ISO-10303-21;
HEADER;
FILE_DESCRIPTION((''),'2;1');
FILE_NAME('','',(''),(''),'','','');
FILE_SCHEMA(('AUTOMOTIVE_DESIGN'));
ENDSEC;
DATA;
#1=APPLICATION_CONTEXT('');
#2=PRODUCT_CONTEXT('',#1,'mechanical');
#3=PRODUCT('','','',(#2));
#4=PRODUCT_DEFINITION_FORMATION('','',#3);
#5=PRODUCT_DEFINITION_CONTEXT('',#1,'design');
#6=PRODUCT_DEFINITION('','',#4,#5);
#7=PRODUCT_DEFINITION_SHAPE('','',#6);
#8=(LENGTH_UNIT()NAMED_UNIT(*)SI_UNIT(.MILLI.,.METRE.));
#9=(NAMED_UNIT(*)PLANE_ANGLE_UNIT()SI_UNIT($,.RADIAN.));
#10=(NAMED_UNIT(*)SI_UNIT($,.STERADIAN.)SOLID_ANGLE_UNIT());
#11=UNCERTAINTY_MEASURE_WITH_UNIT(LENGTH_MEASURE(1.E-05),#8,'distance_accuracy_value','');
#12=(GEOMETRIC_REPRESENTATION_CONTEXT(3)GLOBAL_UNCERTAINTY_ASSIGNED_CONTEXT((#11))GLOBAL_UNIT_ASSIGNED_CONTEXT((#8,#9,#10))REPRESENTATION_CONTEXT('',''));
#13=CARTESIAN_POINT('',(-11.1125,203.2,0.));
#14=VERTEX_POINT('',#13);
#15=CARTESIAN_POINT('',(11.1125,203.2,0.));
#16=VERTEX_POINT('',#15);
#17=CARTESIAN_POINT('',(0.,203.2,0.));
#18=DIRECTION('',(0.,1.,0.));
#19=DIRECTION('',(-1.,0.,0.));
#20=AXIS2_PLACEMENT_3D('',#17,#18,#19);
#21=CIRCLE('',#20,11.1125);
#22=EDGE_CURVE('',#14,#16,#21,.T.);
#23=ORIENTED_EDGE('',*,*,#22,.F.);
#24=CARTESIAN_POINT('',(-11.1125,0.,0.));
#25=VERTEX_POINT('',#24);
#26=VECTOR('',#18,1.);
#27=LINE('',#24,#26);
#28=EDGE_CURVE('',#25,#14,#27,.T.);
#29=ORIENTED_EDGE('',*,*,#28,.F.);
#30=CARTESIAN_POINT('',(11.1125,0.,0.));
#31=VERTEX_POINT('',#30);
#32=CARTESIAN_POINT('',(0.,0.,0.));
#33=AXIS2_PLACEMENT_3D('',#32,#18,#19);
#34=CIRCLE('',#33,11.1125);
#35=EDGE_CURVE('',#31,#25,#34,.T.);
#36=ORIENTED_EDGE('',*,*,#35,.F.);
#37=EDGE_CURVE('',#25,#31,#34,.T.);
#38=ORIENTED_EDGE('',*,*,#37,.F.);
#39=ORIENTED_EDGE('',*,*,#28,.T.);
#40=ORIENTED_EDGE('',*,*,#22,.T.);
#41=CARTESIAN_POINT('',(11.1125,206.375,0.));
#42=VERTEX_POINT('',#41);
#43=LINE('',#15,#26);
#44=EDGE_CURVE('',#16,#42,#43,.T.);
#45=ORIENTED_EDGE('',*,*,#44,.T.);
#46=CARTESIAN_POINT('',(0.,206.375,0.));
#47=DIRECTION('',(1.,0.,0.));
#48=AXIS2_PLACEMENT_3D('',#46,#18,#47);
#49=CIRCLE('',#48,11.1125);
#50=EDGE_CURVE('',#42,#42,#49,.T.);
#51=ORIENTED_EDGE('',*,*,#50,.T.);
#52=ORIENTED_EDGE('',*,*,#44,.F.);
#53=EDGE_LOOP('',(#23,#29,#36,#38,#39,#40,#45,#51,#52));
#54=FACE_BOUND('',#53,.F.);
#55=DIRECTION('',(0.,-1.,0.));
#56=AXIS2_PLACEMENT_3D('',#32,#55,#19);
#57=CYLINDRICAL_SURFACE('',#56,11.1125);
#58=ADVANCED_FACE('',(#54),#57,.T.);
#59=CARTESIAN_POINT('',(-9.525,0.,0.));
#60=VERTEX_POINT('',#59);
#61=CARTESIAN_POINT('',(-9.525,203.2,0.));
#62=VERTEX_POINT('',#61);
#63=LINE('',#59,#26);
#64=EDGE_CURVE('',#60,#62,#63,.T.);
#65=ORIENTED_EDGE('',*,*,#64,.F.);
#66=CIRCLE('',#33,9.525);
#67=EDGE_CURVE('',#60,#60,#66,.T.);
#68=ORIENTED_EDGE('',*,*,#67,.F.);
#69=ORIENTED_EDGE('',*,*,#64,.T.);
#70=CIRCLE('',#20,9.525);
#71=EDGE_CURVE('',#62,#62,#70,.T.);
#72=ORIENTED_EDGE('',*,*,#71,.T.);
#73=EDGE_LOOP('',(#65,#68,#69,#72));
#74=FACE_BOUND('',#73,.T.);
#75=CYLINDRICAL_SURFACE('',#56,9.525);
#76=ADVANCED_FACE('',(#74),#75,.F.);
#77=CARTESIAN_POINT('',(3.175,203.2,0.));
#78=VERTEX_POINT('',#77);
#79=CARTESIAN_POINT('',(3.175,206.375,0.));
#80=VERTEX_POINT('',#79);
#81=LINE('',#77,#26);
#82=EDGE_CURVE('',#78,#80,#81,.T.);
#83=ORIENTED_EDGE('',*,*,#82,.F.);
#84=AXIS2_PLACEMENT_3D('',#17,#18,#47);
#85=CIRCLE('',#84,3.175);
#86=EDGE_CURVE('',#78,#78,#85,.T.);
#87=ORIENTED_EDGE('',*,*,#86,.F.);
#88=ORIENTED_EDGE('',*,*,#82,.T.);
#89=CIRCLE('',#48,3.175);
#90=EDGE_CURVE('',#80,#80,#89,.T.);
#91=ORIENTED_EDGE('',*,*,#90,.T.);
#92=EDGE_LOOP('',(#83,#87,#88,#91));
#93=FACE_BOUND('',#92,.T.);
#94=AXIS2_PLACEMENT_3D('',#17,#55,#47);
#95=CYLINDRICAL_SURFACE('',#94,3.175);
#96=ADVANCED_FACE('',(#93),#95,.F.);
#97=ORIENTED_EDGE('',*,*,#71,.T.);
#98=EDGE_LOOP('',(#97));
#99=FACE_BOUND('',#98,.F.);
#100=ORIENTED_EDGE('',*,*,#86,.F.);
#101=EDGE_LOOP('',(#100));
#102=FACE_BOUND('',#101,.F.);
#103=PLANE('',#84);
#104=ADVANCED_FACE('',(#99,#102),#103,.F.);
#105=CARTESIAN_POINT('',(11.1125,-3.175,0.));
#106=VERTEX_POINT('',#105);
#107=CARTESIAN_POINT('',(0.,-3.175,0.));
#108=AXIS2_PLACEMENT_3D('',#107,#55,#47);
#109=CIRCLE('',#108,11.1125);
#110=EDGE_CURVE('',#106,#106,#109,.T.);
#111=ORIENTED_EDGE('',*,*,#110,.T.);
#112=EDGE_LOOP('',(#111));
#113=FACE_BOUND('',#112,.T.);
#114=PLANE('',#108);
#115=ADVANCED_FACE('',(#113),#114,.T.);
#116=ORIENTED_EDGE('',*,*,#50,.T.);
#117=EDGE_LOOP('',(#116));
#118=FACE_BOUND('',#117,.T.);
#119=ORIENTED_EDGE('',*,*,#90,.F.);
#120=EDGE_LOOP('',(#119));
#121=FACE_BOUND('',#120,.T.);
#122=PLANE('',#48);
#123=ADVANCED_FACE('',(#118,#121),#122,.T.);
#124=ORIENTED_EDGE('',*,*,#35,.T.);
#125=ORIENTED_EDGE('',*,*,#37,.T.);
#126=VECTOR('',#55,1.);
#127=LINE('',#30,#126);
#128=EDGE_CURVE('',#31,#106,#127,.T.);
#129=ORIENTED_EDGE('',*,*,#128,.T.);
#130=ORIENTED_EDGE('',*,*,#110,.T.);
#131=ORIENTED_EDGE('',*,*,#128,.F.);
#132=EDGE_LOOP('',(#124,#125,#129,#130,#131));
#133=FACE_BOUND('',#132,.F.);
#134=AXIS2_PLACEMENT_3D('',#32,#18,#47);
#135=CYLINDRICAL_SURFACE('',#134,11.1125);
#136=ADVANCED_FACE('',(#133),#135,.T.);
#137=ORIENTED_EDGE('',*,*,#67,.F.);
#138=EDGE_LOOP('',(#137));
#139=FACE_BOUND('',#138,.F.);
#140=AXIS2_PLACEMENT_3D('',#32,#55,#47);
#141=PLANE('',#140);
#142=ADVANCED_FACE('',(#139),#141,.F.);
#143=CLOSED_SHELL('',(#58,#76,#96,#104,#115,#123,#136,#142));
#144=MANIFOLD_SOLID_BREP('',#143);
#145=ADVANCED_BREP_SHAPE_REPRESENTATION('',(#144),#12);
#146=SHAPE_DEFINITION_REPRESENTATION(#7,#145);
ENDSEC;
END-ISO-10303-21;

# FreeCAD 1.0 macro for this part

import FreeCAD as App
import Part
import Sketcher
Q = App.Units.Quantity

doc = App.newDocument("Part")
body = doc.addObject("PartDesign::Body", "Body")

# Sketch on XZ plane
sketch1 = body.newObject("Sketcher::SketchObject", "Sketch")
sketch1.AttachmentSupport = (doc.getObject("XZ_Plane"), [""])
sketch1.MapMode = "FlatFace"
sketch1.addGeometry([
    Part.Circle(App.Vector(0, 0, 0), App.Vector(0, 0, 1), 11),
    Part.Circle(App.Vector(0, 0, 0), App.Vector(0, 0, 1), 10),
], False)
sketch1.addConstraint([
    Sketcher.Constraint("Coincident", 0, 3, -1, 1),
    Sketcher.Constraint("Coincident", 1, 3, -1, 1),
    Sketcher.Constraint("Diameter", 1, Q("0.75 in")),
    Sketcher.Constraint("Diameter", 0, Q("0.875 in")),
])
pad1 = body.newObject("PartDesign::Pad", "Pad")
pad1.Profile = sketch1
pad1.Length = Q("8 in")
pad1.Reversed = True

# Sketch on XZ plane
sketch2 = body.newObject("Sketcher::SketchObject", "Sketch001")
sketch2.AttachmentSupport = (doc.getObject("XZ_Plane"), [""])
sketch2.MapMode = "FlatFace"
sketch2.AttachmentOffset = App.Placement(App.Vector(0, 0, -8 * 25.4), App.Rotation())
sketch2.addGeometry([
    Part.Circle(App.Vector(0, 0, 0), App.Vector(0, 0, 1), 11.1),
    Part.Circle(App.Vector(0, 0, 0), App.Vector(0, 0, 1), 3.2),
], False)
sketch2.addConstraint([
    Sketcher.Constraint("Coincident", 0, 3, -1, 1),
    Sketcher.Constraint("Coincident", 1, 3, -1, 1),
    Sketcher.Constraint("Diameter", 1, Q("0.25 in")),
    Sketcher.Constraint("Diameter", 0, Q("0.875 in")),
])
pad2 = body.newObject("PartDesign::Pad", "Pad001")
pad2.Profile = sketch2
pad2.Length = Q("0.125 in")
pad2.Reversed = True

# Sketch on XZ plane
sketch3 = body.newObject("Sketcher::SketchObject", "Sketch002")
sketch3.AttachmentSupport = (doc.getObject("XZ_Plane"), [""])
sketch3.MapMode = "FlatFace"
sketch3.addGeometry(Part.Circle(App.Vector(0, 0, 0), App.Vector(0, 0, 1), 11), False)
sketch3.addConstraint([
    Sketcher.Constraint("Coincident", 0, 3, -1, 1),
    Sketcher.Constraint("Diameter", 0, Q("0.875 in")),
])
pad3 = body.newObject("PartDesign::Pad", "Pad002")
pad3.Profile = sketch3
pad3.Length = Q("0.125 in")

doc.recompute()
